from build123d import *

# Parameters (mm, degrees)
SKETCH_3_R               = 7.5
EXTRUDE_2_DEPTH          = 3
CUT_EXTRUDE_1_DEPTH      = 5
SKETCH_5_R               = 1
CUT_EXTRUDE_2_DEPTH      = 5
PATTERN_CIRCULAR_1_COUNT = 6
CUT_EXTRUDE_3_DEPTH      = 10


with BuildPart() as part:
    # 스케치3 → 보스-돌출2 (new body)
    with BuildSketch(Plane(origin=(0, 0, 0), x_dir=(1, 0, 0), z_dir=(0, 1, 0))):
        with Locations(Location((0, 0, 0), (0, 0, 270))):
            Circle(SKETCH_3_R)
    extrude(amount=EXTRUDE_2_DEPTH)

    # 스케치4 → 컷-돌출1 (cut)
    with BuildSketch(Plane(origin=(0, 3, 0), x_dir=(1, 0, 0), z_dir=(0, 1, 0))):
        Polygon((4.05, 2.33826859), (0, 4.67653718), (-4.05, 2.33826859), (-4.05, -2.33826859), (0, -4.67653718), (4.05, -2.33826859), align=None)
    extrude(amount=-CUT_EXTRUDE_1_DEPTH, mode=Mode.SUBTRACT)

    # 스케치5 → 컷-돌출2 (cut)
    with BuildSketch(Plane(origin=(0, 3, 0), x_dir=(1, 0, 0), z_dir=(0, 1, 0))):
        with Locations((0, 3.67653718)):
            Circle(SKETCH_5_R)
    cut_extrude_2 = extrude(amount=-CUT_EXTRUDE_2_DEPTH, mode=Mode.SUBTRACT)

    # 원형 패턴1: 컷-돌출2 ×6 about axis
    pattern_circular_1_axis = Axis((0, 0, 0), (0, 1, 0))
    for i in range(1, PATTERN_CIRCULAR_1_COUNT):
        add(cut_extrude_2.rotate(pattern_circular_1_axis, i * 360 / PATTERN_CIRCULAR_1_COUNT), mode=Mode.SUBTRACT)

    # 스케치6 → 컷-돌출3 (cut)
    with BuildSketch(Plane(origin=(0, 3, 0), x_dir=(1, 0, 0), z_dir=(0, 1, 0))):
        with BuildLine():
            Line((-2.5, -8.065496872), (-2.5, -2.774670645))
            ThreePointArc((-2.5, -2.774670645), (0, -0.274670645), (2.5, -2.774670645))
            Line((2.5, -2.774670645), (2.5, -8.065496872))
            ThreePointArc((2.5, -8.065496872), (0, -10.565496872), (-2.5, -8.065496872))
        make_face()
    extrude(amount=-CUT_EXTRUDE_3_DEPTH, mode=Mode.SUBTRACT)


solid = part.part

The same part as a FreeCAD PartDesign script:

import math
import FreeCAD as App
import Part
import Sketcher

V = App.Vector
Q = App.Units.Quantity

doc = App.newDocument("Part")
params = doc.addObject("Spreadsheet::Sheet", "Params")
for row, (alias, value) in enumerate([
    ("sketch1_diameter", "15 mm"),
    ("pad1_length", "3 mm"),
    ("pocket1_length", "5 mm"),
    ("sketch3_diameter", "2 mm"),
    ("pocket2_length", "5 mm"),
    ("sketch4_radius", "2.5 mm"),
    ("pocket3_length", "10 mm"),
], start=1):
    params.set(f"A{row}", alias)
    params.set(f"B{row}", "=" + value)
    params.setAlias(f"B{row}", alias)

body = doc.addObject("PartDesign::Body", "Body")

sketch1 = doc.addObject("Sketcher::SketchObject", "Sketch")
body.addObject(sketch1)
sketch1.AttachmentSupport = (doc.XZ_Plane, [""])
sketch1.MapMode = "FlatFace"
sketch1.addGeometry(Part.Circle(V(0, 0, 0), V(0, 0, 1), 8), False)
sketch1.addConstraint([
    Sketcher.Constraint("Coincident", 0, 3, -1, 1),
    Sketcher.Constraint("Diameter", 0, Q("15 mm")),
])
sketch1.setExpression("Constraints[1]", "Params.sketch1_diameter")
pad1 = doc.addObject("PartDesign::Pad", "Pad")
body.addObject(pad1)
pad1.Profile = sketch1
pad1.setExpression("Length", "Params.pad1_length")
pad1.Reversed = True

sketch2 = doc.addObject("Sketcher::SketchObject", "Sketch001")
body.addObject(sketch2)
sketch2.AttachmentSupport = (doc.XZ_Plane, [""])
sketch2.MapMode = "FlatFace"
sketch2.AttachmentOffset = App.Placement(V(0, 0, -3), App.Rotation())
sketch2.addGeometry([
    Part.LineSegment(V(4, -2.3, 0), V(0, -4.7, 0)),
    Part.LineSegment(V(0, -4.7, 0), V(-4, -2.3, 0)),
    Part.LineSegment(V(-4, -2.3, 0), V(-4, 2.3, 0)),
    Part.LineSegment(V(-4, 2.3, 0), V(0, 4.7, 0)),
    Part.LineSegment(V(0, 4.7, 0), V(4, 2.3, 0)),
    Part.LineSegment(V(4, 2.3, 0), V(4, -2.3, 0)),
], False)
sketch2.addConstraint([
    Sketcher.Constraint("Coincident", 0, 2, 1, 1),
    Sketcher.Constraint("Coincident", 1, 2, 2, 1),
    Sketcher.Constraint("Coincident", 2, 2, 3, 1),
    Sketcher.Constraint("Coincident", 3, 2, 4, 1),
    Sketcher.Constraint("Coincident", 4, 2, 5, 1),
    Sketcher.Constraint("Coincident", 5, 2, 0, 1),
    Sketcher.Constraint("Vertical", 2),
    Sketcher.Constraint("Vertical", 5),
    Sketcher.Constraint("Symmetric", 0, 2, 3, 2, -1, 1),
    Sketcher.Constraint("Symmetric", 1, 2, 4, 2, -1, 1),
    Sketcher.Constraint("PointOnObject", 0, 2, -2),
    Sketcher.Constraint("Parallel", 0, 3),
    Sketcher.Constraint("Horizontal", 2, 2, 4, 2),
    Sketcher.Constraint("Angle", 0, Q("-150 deg")),
    Sketcher.Constraint("DistanceX", 2, 2, 4, 2, Q("8.1 mm")),
    Sketcher.Constraint("DistanceY", 2, 1, 2, 2, Q("4.676537 mm")),
])
pocket1 = doc.addObject("PartDesign::Pocket", "Pocket")
body.addObject(pocket1)
pocket1.Profile = sketch2
pocket1.setExpression("Length", "Params.pocket1_length")
pocket1.Reversed = True

sketch3 = doc.addObject("Sketcher::SketchObject", "Sketch002")
body.addObject(sketch3)
sketch3.AttachmentSupport = (doc.XZ_Plane, [""])
sketch3.MapMode = "FlatFace"
sketch3.AttachmentOffset = App.Placement(V(0, 0, -3), App.Rotation())
sketch3.addGeometry(Part.Circle(V(0, -3.7, 0), V(0, 0, 1), 1), False)
sketch3.addConstraint([
    Sketcher.Constraint("PointOnObject", 0, 3, -2),
    Sketcher.Constraint("Diameter", 0, Q("2 mm")),
    Sketcher.Constraint("DistanceY", 0, 3, -1, 1, Q("3.676537 mm")),
])
sketch3.setExpression("Constraints[1]", "Params.sketch3_diameter")
pocket2 = doc.addObject("PartDesign::Pocket", "Pocket001")
body.addObject(pocket2)
pocket2.Profile = sketch3
pocket2.setExpression("Length", "Params.pocket2_length")
pocket2.Reversed = True
doc.recompute()

polarpattern = doc.addObject("PartDesign::PolarPattern", "PolarPattern")
body.addObject(polarpattern)
polarpattern.Originals = [pocket2]
polarpattern.Axis = (doc.Y_Axis, [""])
polarpattern.Angle = 360
polarpattern.Occurrences = 6
body.Tip = polarpattern

sketch4 = doc.addObject("Sketcher::SketchObject", "Sketch003")
body.addObject(sketch4)
sketch4.AttachmentSupport = (doc.XZ_Plane, [""])
sketch4.MapMode = "FlatFace"
sketch4.AttachmentOffset = App.Placement(V(0, 0, -3), App.Rotation())
sketch4.addGeometry([
    Part.LineSegment(V(-2.5, 2.8, 0), V(-2.5, 8.1, 0)),
    Part.ArcOfCircle(Part.Circle(V(0, 8.1, 0), V(0, 0, 1), 2.5), math.radians(0), math.radians(180)),
    Part.LineSegment(V(2.5, 8.1, 0), V(2.5, 2.8, 0)),
    Part.ArcOfCircle(Part.Circle(V(0, 2.8, 0), V(0, 0, 1), 2.5), math.radians(180), math.radians(360)),
], False)
sketch4.addConstraint([
    Sketcher.Constraint("Tangent", 0, 2, 1, 2),
    Sketcher.Constraint("Tangent", 1, 1, 2, 1),
    Sketcher.Constraint("Tangent", 2, 2, 3, 2),
    Sketcher.Constraint("Tangent", 3, 1, 0, 1),
    Sketcher.Constraint("Vertical", 0),
    Sketcher.Constraint("Vertical", 2),
    Sketcher.Constraint("PointOnObject", 1, 3, -2),
    Sketcher.Constraint("Radius", 1, Q("2.5 mm")),
    Sketcher.Constraint("DistanceY", 0, 1, 0, 2, Q("5.290826 mm")),
    Sketcher.Constraint("DistanceY", -1, 1, 3, 3, Q("2.774671 mm")),
])
sketch4.setExpression("Constraints[7]", "Params.sketch4_radius")
pocket3 = doc.addObject("PartDesign::Pocket", "Pocket002")
body.addObject(pocket3)
pocket3.Profile = sketch4
pocket3.setExpression("Length", "Params.pocket3_length")
pocket3.Reversed = True

doc.recompute()
